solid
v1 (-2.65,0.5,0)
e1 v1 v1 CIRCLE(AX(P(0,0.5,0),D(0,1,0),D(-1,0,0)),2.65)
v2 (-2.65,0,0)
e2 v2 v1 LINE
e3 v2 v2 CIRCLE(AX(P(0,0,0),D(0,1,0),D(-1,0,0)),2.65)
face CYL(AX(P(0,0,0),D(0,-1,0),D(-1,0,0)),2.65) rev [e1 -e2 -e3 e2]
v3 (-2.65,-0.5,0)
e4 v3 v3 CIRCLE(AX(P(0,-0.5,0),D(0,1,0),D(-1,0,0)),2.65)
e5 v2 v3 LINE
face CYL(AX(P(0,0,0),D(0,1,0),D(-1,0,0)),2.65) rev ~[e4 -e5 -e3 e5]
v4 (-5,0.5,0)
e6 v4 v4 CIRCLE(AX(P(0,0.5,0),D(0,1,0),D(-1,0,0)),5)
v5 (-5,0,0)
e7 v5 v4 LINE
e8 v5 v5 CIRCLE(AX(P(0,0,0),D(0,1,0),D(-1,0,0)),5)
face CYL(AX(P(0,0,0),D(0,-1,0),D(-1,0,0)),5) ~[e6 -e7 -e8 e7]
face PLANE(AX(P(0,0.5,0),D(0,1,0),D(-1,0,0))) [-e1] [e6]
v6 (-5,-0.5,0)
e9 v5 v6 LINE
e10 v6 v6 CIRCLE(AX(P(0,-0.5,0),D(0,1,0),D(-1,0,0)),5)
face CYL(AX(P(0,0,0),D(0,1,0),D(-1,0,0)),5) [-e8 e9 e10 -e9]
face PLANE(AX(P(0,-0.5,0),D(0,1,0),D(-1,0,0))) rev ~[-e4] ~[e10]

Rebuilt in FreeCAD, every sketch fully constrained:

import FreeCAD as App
import Part
import Sketcher

V = App.Vector

doc = App.newDocument("Part")
params = doc.addObject("Spreadsheet::Sheet", "Params")
for row, (alias, value) in enumerate([
    ("sketch1_diameter", "10 mm"),
    ("sketch1_diameter2", "5.3 mm"),
    ("pad1_length", "1 mm"),
], start=1):
    params.set(f"A{row}", alias)
    params.set(f"B{row}", "=" + value)
    params.setAlias(f"B{row}", alias)

body = doc.addObject("PartDesign::Body", "Body")

sketch1 = body.newObject("Sketcher::SketchObject", "Sketch")
sketch1.AttachmentSupport = (doc.getObject("XZ_Plane"), [""])
sketch1.MapMode = "FlatFace"
sketch1.addGeometry(Part.Circle(V(0, 0, 0), V(0, 0, 1), 5), False)
sketch1.addGeometry(Part.Circle(V(0, 0, 0), V(0, 0, 1), 2.6), False)
sketch1.addConstraint(Sketcher.Constraint("Coincident", 0, 3, -1, 1))
sketch1.addConstraint(Sketcher.Constraint("Coincident", 1, 3, -1, 1))
sketch1.addConstraint(Sketcher.Constraint("Diameter", 0, 10.0))
sketch1.addConstraint(Sketcher.Constraint("Diameter", 1, 5.3))
sketch1.setExpression("Constraints[2]", "Params.sketch1_diameter")
sketch1.setExpression("Constraints[3]", "Params.sketch1_diameter2")
pad1 = body.newObject("PartDesign::Pad", "Pad")
pad1.Profile = sketch1
pad1.setExpression("Length", "Params.pad1_length")
pad1.Midplane = True

doc.recompute()
